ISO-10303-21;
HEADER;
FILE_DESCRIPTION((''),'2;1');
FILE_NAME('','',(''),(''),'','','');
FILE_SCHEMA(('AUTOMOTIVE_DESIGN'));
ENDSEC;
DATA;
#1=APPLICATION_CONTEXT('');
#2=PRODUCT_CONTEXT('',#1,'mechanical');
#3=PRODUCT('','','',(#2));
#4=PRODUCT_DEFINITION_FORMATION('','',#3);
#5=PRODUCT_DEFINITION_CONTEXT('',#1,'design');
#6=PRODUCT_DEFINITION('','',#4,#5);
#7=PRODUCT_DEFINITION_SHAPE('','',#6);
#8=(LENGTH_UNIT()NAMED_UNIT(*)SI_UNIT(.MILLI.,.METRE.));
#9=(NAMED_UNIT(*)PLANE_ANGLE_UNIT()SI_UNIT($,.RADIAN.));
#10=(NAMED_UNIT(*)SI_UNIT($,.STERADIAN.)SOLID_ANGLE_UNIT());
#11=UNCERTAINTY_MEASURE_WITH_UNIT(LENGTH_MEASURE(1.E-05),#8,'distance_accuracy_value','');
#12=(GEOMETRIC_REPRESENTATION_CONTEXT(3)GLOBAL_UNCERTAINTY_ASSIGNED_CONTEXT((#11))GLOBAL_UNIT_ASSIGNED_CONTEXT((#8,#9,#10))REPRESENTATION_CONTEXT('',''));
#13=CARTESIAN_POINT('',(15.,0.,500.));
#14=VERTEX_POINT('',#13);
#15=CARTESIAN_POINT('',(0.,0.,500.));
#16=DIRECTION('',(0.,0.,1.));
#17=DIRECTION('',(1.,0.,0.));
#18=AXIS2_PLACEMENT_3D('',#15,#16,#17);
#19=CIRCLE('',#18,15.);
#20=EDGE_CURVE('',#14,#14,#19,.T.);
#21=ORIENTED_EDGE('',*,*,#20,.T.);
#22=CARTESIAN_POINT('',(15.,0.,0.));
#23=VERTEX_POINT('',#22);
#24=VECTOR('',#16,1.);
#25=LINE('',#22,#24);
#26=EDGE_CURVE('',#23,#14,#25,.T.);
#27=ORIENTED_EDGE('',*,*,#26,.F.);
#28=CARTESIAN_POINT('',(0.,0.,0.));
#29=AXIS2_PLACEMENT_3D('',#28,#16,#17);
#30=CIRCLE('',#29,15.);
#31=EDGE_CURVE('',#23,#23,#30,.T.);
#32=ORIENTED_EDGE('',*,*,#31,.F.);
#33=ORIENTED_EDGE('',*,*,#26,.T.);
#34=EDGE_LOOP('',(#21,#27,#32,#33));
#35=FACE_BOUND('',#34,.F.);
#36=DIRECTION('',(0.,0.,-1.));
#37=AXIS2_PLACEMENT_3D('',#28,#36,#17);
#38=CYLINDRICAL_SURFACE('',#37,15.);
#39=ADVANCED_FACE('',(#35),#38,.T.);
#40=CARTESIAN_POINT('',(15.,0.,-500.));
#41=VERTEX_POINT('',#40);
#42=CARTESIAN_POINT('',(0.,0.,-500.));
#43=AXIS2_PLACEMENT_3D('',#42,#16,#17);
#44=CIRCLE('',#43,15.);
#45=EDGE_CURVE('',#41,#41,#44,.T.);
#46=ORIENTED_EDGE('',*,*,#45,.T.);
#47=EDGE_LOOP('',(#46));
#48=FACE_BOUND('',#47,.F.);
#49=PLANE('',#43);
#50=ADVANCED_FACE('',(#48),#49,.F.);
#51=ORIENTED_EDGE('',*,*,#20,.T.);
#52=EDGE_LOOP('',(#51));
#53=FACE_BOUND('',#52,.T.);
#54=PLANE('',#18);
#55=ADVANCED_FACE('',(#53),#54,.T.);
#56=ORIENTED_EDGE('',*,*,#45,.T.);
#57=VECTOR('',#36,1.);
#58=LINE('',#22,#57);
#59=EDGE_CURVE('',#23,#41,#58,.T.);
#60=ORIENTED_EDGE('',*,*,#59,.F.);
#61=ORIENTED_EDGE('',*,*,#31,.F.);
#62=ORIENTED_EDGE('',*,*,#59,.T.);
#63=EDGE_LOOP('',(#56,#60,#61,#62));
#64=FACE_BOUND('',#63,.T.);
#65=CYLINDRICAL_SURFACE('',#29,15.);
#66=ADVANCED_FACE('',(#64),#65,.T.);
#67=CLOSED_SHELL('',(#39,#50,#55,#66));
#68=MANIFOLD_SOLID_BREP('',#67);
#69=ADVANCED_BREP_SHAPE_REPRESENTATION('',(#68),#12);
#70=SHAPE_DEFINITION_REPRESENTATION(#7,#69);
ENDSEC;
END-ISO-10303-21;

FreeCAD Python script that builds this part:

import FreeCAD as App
import Part
import Sketcher
from FreeCAD import Vector
Q = App.Units.Quantity

doc = App.newDocument("Part")
body = doc.addObject("PartDesign::Body", "Body")

sketch1 = body.newObject("Sketcher::SketchObject", "Sketch")
sketch1.AttachmentSupport = (doc.getObject("XY_Plane"), [""])
sketch1.MapMode = "FlatFace"
sketch1.addGeometry(Part.Circle(Vector(0, 0, 0), Vector(0, 0, 1), 15), False)
sketch1.addConstraint([
    Sketcher.Constraint("Coincident", 0, 3, -1, 1),
    Sketcher.Constraint("Diameter", 0, Q("30 mm")),
])
pad1 = body.newObject("PartDesign::Pad", "Pad")
pad1.Profile = sketch1
pad1.Length = 1000
pad1.Midplane = True

doc.recompute()
